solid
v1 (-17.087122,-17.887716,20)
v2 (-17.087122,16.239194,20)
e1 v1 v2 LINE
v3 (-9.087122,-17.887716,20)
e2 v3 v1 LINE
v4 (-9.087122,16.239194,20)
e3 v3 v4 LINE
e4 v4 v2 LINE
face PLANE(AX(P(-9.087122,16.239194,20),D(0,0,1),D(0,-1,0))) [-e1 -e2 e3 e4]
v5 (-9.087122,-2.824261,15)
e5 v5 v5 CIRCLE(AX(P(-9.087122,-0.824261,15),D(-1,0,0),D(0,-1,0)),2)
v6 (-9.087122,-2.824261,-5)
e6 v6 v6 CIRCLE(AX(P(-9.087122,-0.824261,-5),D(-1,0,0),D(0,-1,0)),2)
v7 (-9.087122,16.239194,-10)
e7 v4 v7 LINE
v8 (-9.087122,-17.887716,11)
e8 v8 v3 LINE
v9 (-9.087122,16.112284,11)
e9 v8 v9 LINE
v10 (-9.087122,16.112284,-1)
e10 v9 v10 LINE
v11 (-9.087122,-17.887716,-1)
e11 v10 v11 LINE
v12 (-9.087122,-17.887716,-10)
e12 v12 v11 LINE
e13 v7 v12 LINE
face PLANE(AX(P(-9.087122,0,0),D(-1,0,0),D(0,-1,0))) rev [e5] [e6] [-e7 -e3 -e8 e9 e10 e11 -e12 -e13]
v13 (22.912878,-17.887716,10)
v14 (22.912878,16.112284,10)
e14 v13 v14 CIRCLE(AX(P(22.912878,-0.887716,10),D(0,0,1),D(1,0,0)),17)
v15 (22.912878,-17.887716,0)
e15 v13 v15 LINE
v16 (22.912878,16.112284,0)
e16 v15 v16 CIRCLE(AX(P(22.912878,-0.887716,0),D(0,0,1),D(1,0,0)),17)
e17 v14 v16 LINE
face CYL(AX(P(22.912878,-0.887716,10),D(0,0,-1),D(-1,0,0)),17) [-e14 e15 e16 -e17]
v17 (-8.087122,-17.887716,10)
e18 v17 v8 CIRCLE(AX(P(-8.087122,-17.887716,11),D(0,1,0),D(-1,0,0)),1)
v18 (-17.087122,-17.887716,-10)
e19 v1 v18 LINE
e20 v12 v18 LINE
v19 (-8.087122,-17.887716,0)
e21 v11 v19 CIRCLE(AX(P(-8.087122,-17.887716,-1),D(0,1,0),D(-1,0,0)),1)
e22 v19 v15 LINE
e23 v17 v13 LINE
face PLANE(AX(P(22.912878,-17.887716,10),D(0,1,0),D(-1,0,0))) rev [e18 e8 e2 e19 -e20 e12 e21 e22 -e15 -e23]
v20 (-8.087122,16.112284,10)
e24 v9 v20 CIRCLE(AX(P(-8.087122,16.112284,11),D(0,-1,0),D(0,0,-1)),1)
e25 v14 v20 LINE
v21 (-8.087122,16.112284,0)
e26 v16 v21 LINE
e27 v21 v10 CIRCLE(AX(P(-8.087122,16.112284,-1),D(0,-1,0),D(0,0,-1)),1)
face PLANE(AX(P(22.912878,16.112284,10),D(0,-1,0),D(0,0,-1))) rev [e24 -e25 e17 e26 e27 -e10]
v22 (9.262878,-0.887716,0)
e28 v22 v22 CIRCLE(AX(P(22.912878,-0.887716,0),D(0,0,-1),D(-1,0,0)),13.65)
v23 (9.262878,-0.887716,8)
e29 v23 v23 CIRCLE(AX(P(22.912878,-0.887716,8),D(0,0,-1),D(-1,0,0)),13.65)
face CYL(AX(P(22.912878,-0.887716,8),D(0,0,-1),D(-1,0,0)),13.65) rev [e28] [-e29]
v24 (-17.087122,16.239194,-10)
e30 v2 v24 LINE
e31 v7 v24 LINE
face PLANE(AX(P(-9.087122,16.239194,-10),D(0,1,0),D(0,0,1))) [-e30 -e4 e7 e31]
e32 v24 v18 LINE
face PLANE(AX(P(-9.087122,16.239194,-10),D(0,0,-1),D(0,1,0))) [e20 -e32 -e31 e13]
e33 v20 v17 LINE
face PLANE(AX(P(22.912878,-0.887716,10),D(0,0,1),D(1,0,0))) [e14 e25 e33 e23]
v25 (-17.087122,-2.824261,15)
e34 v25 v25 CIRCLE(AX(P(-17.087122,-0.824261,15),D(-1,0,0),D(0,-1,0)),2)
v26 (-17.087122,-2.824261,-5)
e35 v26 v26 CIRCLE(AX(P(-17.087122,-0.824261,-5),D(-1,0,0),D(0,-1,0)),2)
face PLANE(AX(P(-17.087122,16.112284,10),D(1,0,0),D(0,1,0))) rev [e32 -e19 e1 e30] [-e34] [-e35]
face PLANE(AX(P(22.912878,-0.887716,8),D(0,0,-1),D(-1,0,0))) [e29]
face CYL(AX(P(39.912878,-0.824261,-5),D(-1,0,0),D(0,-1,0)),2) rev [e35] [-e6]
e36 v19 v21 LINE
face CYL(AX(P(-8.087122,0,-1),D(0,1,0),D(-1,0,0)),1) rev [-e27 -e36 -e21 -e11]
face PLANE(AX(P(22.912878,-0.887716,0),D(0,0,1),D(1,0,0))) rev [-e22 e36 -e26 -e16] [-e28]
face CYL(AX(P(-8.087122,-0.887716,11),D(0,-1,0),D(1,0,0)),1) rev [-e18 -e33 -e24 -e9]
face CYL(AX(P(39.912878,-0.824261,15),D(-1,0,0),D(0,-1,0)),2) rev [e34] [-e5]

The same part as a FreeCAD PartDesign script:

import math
import FreeCAD as App
import Part
import Sketcher
from FreeCAD import Vector
Q = App.Units.Quantity


def edges_at(feature, points):
    """Names of the edges that pass closest to the given points."""
    edges = feature.Shape.Edges
    near = lambda p: min(range(len(edges)), key=lambda i: edges[i].distToShape(Part.Vertex(*p))[0])
    return sorted({f"Edge{near(p) + 1}" for p in points})

doc = App.newDocument("Part")
params = doc.addObject("Spreadsheet::Sheet", "Params")
for row, (alias, value) in enumerate([
    ("sketch1_radius", "17 mm"),
    ("sketch1_width", "40 mm"),
    ("pad1_length", "10 mm"),
    ("sketch2_height", "30 mm"),
    ("pad2_length", "8 mm"),
    ("fillet_radius", "1 mm"),
    ("sketch3_diameter", "4 mm"),
    ("sketch4_diameter", "27.3 mm"),
    ("pocket2_length", "8 mm"),
], start=1):
    params.set(f"A{row}", alias)
    params.set(f"B{row}", "=" + value)
    params.setAlias(f"B{row}", alias)

body = doc.addObject("PartDesign::Body", "Body")

# Sketch on XY plane
sketch1 = body.newObject("Sketcher::SketchObject", "Sketch")
sketch1.AttachmentSupport = (doc.getObject("XY_Plane"), [""])
sketch1.MapMode = "FlatFace"
sketch1.addGeometry([
    Part.LineSegment(Vector(23, 16, 0), Vector(-17, 16, 0)),
    Part.LineSegment(Vector(-17, 16, 0), Vector(-17, -18, 0)),
    Part.LineSegment(Vector(-17, -18, 0), Vector(23, -18, 0)),
    Part.ArcOfCircle(Part.Circle(Vector(23, -1, 0), Vector(0, 0, 1), 17), math.radians(-90), math.radians(90)),
], False)
sketch1.addConstraint([
    Sketcher.Constraint("Coincident", 0, 2, 1, 1),
    Sketcher.Constraint("Coincident", 1, 2, 2, 1),
    Sketcher.Constraint("Tangent", 2, 2, 3, 1),
    Sketcher.Constraint("Tangent", 3, 2, 0, 1),
    Sketcher.Constraint("Horizontal", 0),
    Sketcher.Constraint("Vertical", 1),
    Sketcher.Constraint("Horizontal", 2),
    Sketcher.Constraint("Radius", 3, Q("17 mm")),
    Sketcher.Constraint("DistanceX", 0, 2, 0, 1, Q("40 mm")),
    Sketcher.Constraint("DistanceX", -1, 1, 3, 3, Q("22.912878 mm")),
    Sketcher.Constraint("DistanceY", 3, 3, -1, 1, Q("0.887716 mm")),
])
sketch1.setExpression("Constraints[7]", "Params.sketch1_radius")
sketch1.setExpression("Constraints[8]", "Params.sketch1_width")
pad1 = body.newObject("PartDesign::Pad", "Pad")
pad1.Profile = sketch1
pad1.setExpression("Length", "Params.pad1_length")

# Sketch on YZ plane
sketch2 = body.newObject("Sketcher::SketchObject", "Sketch001")
sketch2.AttachmentSupport = (doc.getObject("YZ_Plane"), [""])
sketch2.MapMode = "FlatFace"
sketch2.AttachmentOffset = App.Placement(Vector(0, 0, -17.087122), App.Rotation())
sketch2.addGeometry([
    Part.LineSegment(Vector(16, -10, 0), Vector(-18, -10, 0)),
    Part.LineSegment(Vector(-18, -10, 0), Vector(-18, 20, 0)),
    Part.LineSegment(Vector(-18, 20, 0), Vector(16, 20, 0)),
    Part.LineSegment(Vector(16, 20, 0), Vector(16, -10, 0)),
], False)
sketch2.addConstraint([
    Sketcher.Constraint("Coincident", 0, 2, 1, 1),
    Sketcher.Constraint("Coincident", 1, 2, 2, 1),
    Sketcher.Constraint("Coincident", 2, 2, 3, 1),
    Sketcher.Constraint("Coincident", 3, 2, 0, 1),
    Sketcher.Constraint("Horizontal", 0),
    Sketcher.Constraint("Vertical", 1),
    Sketcher.Constraint("Horizontal", 2),
    Sketcher.Constraint("Vertical", 3),
    Sketcher.Constraint("DistanceY", 1, 1, 1, 2, Q("30 mm")),
    Sketcher.Constraint("DistanceY", 0, 2, -1, 1, Q("10 mm")),
    Sketcher.Constraint("DistanceX", 0, 2, 0, 1, Q("34.12691 mm")),
    Sketcher.Constraint("DistanceX", 0, 2, -1, 1, Q("17.887716 mm")),
])
sketch2.setExpression("Constraints[8]", "Params.sketch2_height")
pad2 = body.newObject("PartDesign::Pad", "Pad001")
pad2.Profile = sketch2
pad2.setExpression("Length", "Params.pad2_length")
doc.recompute()

fillet = body.newObject("PartDesign::Fillet", "Fillet")
fillet.Base = (pad2, edges_at(pad2, [(-9.087, -0.888, 0), (-9.087, -0.888, 10)]))
fillet.setExpression("Radius", "Params.fillet_radius")

# Sketch on YZ plane
sketch3 = body.newObject("Sketcher::SketchObject", "Sketch002")
sketch3.AttachmentSupport = (doc.getObject("YZ_Plane"), [""])
sketch3.MapMode = "FlatFace"
sketch3.AttachmentOffset = App.Placement(Vector(0, 0, -17.087122), App.Rotation())
sketch3.addGeometry([
    Part.Circle(Vector(-0.8, -5, 0), Vector(0, 0, 1), 2),
    Part.Circle(Vector(-0.8, 15, 0), Vector(0, 0, 1), 2),
], False)
sketch3.addConstraint([
    Sketcher.Constraint("Equal", 0, 1),
    Sketcher.Constraint("Vertical", 0, 3, 1, 3),
    Sketcher.Constraint("Diameter", 0, Q("4 mm")),
    Sketcher.Constraint("DistanceY", 0, 3, -1, 1, Q("5 mm")),
    Sketcher.Constraint("DistanceY", -1, 1, 1, 3, Q("15 mm")),
    Sketcher.Constraint("DistanceX", 0, 3, -1, 1, Q("0.824261 mm")),
])
sketch3.setExpression("Constraints[2]", "Params.sketch3_diameter")
pocket1 = body.newObject("PartDesign::Pocket", "Pocket")
pocket1.Profile = sketch3
pocket1.Type = "ThroughAll"
pocket1.Reversed = True

# Sketch on XY plane
sketch4 = body.newObject("Sketcher::SketchObject", "Sketch003")
sketch4.AttachmentSupport = (doc.getObject("XY_Plane"), [""])
sketch4.MapMode = "FlatFace"
sketch4.addGeometry(Part.Circle(Vector(23, -1, 0), Vector(0, 0, 1), 14), False)
sketch4.addConstraint([
    Sketcher.Constraint("Diameter", 0, Q("27.3 mm")),
    Sketcher.Constraint("DistanceX", -1, 1, 0, 3, Q("22.912878 mm")),
    Sketcher.Constraint("DistanceY", 0, 3, -1, 1, Q("0.887716 mm")),
])
sketch4.setExpression("Constraints[0]", "Params.sketch4_diameter")
pocket2 = body.newObject("PartDesign::Pocket", "Pocket001")
pocket2.Profile = sketch4
pocket2.setExpression("Length", "Params.pocket2_length")
pocket2.Reversed = True

doc.recompute()
